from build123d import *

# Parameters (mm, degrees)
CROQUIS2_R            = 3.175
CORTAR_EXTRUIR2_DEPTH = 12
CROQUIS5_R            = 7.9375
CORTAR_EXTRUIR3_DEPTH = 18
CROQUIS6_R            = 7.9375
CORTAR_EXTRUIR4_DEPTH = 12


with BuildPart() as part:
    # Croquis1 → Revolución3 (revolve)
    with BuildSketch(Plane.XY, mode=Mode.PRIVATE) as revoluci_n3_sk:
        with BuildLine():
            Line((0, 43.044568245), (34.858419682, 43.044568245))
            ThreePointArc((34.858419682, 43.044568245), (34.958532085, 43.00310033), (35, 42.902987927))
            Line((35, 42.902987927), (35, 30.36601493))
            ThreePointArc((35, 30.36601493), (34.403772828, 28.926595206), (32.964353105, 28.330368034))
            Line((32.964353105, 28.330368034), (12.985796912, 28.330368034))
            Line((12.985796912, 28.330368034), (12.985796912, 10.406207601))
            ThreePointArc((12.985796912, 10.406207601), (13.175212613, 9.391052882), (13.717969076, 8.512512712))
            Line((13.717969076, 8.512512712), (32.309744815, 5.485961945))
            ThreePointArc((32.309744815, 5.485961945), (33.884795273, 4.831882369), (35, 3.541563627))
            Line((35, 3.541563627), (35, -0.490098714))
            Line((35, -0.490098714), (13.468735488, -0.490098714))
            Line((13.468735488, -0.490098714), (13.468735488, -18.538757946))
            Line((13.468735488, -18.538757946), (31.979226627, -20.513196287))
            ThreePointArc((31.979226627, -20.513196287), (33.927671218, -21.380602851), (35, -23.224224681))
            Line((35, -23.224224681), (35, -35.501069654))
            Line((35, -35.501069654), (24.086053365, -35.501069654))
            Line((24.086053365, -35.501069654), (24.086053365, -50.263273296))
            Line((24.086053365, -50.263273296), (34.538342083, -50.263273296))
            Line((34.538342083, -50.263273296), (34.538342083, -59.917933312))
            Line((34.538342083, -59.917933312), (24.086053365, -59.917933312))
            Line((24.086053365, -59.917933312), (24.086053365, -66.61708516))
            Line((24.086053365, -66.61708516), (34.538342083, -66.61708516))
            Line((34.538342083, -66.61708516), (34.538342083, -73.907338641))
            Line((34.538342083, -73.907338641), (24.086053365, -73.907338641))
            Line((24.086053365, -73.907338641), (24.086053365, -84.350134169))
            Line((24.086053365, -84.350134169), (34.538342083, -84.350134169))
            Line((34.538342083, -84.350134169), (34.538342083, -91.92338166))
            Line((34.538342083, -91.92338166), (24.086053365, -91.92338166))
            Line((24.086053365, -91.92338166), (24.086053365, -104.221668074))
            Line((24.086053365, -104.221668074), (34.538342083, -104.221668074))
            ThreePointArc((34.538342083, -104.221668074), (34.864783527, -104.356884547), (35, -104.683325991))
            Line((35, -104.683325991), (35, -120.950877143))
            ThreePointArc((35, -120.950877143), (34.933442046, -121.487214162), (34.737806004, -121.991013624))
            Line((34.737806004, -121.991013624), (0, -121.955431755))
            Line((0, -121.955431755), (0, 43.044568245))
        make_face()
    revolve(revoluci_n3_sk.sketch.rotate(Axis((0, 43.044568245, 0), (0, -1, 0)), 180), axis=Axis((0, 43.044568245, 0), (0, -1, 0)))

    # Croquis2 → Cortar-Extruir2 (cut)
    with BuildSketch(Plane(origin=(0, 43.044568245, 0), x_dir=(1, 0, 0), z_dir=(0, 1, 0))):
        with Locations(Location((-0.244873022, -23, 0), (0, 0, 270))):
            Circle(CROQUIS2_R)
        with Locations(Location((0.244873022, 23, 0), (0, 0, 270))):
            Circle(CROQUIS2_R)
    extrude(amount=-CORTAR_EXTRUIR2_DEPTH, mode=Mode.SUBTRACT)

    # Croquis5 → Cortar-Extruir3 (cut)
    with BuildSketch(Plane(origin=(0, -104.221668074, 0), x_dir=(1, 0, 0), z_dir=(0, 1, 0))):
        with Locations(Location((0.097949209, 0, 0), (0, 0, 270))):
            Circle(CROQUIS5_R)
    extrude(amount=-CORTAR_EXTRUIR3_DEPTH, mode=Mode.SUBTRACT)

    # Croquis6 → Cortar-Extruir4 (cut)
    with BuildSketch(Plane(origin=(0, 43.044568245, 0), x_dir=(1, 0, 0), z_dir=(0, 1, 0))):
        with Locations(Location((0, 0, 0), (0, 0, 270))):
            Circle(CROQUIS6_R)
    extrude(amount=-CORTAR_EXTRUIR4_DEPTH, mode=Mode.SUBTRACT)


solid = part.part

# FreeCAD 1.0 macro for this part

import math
import FreeCAD as App
import Part
import Sketcher

V = App.Vector
Q = App.Units.Quantity

doc = App.newDocument("Part")
body = doc.addObject("PartDesign::Body", "Body")

# Sketch on XY plane
sketch1 = body.newObject("Sketcher::SketchObject", "Sketch")
sketch1.AttachmentSupport = (doc.getObject("XY_Plane"), [""])
sketch1.MapMode = "FlatFace"
sketch1.addGeometry(Part.LineSegment(V(34.85842, 43.044568, 0), V(0, 43.044568, 0)), False)
sketch1.addGeometry(Part.LineSegment(V(0, 43.044568, 0), V(0, -121.955432, 0)), False)
sketch1.addGeometry(Part.LineSegment(V(0, -121.955432, 0), V(34.737806, -121.991014, 0)), False)
sketch1.addGeometry(Part.ArcOfCircle(Part.Circle(V(32.805767, -120.950877, 0), V(0, 0, 1), 2.194233), math.radians(-28.296333), math.radians(0)), False)
sketch1.addGeometry(Part.LineSegment(V(35, -120.950877, 0), V(35, -104.683326, 0)), False)
sketch1.addGeometry(Part.ArcOfCircle(Part.Circle(V(34.538342, -104.683326, 0), V(0, 0, 1), 0.461658), math.radians(0), math.radians(90)), False)
sketch1.addGeometry(Part.LineSegment(V(34.538342, -104.221668, 0), V(24.086053, -104.221668, 0)), False)
sketch1.addGeometry(Part.LineSegment(V(24.086053, -104.221668, 0), V(24.086053, -91.923382, 0)), False)
sketch1.addGeometry(Part.LineSegment(V(24.086053, -91.923382, 0), V(34.538342, -91.923382, 0)), False)
sketch1.addGeometry(Part.LineSegment(V(34.538342, -91.923382, 0), V(34.538342, -84.350134, 0)), False)
sketch1.addGeometry(Part.LineSegment(V(34.538342, -84.350134, 0), V(24.086053, -84.350134, 0)), False)
sketch1.addGeometry(Part.LineSegment(V(24.086053, -84.350134, 0), V(24.086053, -73.907339, 0)), False)
sketch1.addGeometry(Part.LineSegment(V(24.086053, -73.907339, 0), V(34.538342, -73.907339, 0)), False)
sketch1.addGeometry(Part.LineSegment(V(34.538342, -73.907339, 0), V(34.538342, -66.617085, 0)), False)
sketch1.addGeometry(Part.LineSegment(V(34.538342, -66.617085, 0), V(24.086053, -66.617085, 0)), False)
sketch1.addGeometry(Part.LineSegment(V(24.086053, -66.617085, 0), V(24.086053, -59.917933, 0)), False)
sketch1.addGeometry(Part.LineSegment(V(24.086053, -59.917933, 0), V(34.538342, -59.917933, 0)), False)
sketch1.addGeometry(Part.LineSegment(V(34.538342, -59.917933, 0), V(34.538342, -50.263273, 0)), False)
sketch1.addGeometry(Part.LineSegment(V(34.538342, -50.263273, 0), V(24.086053, -50.263273, 0)), False)
sketch1.addGeometry(Part.LineSegment(V(24.086053, -50.263273, 0), V(24.086053, -35.50107, 0)), False)
sketch1.addGeometry(Part.LineSegment(V(24.086053, -35.50107, 0), V(35, -35.50107, 0)), False)
sketch1.addGeometry(Part.LineSegment(V(35, -35.50107, 0), V(35, -23.224225, 0)), False)
sketch1.addGeometry(Part.ArcOfCircle(Part.Circle(V(31.61141, -23.961506, 0), V(0, 0, 1), 3.467871), math.radians(12.274964), math.radians(83.911515)), False)
sketch1.addGeometry(Part.LineSegment(V(31.979227, -20.513196, 0), V(13.468735, -18.538758, 0)), False)
sketch1.addGeometry(Part.LineSegment(V(13.468735, -18.538758, 0), V(13.468735, -0.490099, 0)), False)
sketch1.addGeometry(Part.LineSegment(V(13.468735, -0.490099, 0), V(35, -0.490099, 0)), False)
sketch1.addGeometry(Part.LineSegment(V(35, -0.490099, 0), V(35, 3.541564, 0)), False)
sketch1.addGeometry(Part.ArcOfCircle(Part.Circle(V(31.714425, 1.828973, 0), V(0, 0, 1), 3.705128), math.radians(27.530559), math.radians(80.753939)), False)
sketch1.addGeometry(Part.LineSegment(V(32.309745, 5.485962, 0), V(13.717969, 8.512513, 0)), False)
sketch1.addGeometry(Part.ArcOfCircle(Part.Circle(V(15.800815, 10.406208, 0), V(0, 0, 1), 2.815019), math.radians(-180), math.radians(-137.723326)), False)
sketch1.addGeometry(Part.LineSegment(V(12.985797, 10.406208, 0), V(12.985797, 28.330368, 0)), False)
sketch1.addGeometry(Part.LineSegment(V(12.985797, 28.330368, 0), V(32.964353, 28.330368, 0)), False)
sketch1.addGeometry(Part.ArcOfCircle(Part.Circle(V(32.964353, 30.366015, 0), V(0, 0, 1), 2.035647), math.radians(-90), math.radians(0)), False)
sketch1.addGeometry(Part.LineSegment(V(35, 30.366015, 0), V(35, 42.902988, 0)), False)
sketch1.addGeometry(Part.ArcOfCircle(Part.Circle(V(34.85842, 42.902988, 0), V(0, 0, 1), 0.14158), math.radians(0), math.radians(90)), False)
sketch1.addConstraint(Sketcher.Constraint("Coincident", 0, 2, 1, 1))
sketch1.addConstraint(Sketcher.Constraint("Coincident", 1, 2, 2, 1))
sketch1.addConstraint(Sketcher.Constraint("Coincident", 2, 2, 3, 1))
sketch1.addConstraint(Sketcher.Constraint("Tangent", 3, 2, 4, 1))
sketch1.addConstraint(Sketcher.Constraint("Tangent", 4, 2, 5, 1))
sketch1.addConstraint(Sketcher.Constraint("Tangent", 5, 2, 6, 1))
sketch1.addConstraint(Sketcher.Constraint("Coincident", 6, 2, 7, 1))
sketch1.addConstraint(Sketcher.Constraint("Coincident", 7, 2, 8, 1))
sketch1.addConstraint(Sketcher.Constraint("Coincident", 8, 2, 9, 1))
sketch1.addConstraint(Sketcher.Constraint("Coincident", 9, 2, 10, 1))
sketch1.addConstraint(Sketcher.Constraint("Coincident", 10, 2, 11, 1))
sketch1.addConstraint(Sketcher.Constraint("Coincident", 11, 2, 12, 1))
sketch1.addConstraint(Sketcher.Constraint("Coincident", 12, 2, 13, 1))
sketch1.addConstraint(Sketcher.Constraint("Coincident", 13, 2, 14, 1))
sketch1.addConstraint(Sketcher.Constraint("Coincident", 14, 2, 15, 1))
sketch1.addConstraint(Sketcher.Constraint("Coincident", 15, 2, 16, 1))
sketch1.addConstraint(Sketcher.Constraint("Coincident", 16, 2, 17, 1))
sketch1.addConstraint(Sketcher.Constraint("Coincident", 17, 2, 18, 1))
sketch1.addConstraint(Sketcher.Constraint("Coincident", 18, 2, 19, 1))
sketch1.addConstraint(Sketcher.Constraint("Coincident", 19, 2, 20, 1))
sketch1.addConstraint(Sketcher.Constraint("Coincident", 20, 2, 21, 1))
sketch1.addConstraint(Sketcher.Constraint("Coincident", 21, 2, 22, 1))
sketch1.addConstraint(Sketcher.Constraint("Tangent", 22, 2, 23, 1))
sketch1.addConstraint(Sketcher.Constraint("Coincident", 23, 2, 24, 1))
sketch1.addConstraint(Sketcher.Constraint("Coincident", 24, 2, 25, 1))
sketch1.addConstraint(Sketcher.Constraint("Coincident", 25, 2, 26, 1))
sketch1.addConstraint(Sketcher.Constraint("Coincident", 26, 2, 27, 1))
sketch1.addConstraint(Sketcher.Constraint("Tangent", 27, 2, 28, 1))
sketch1.addConstraint(Sketcher.Constraint("Coincident", 28, 2, 29, 2))
sketch1.addConstraint(Sketcher.Constraint("Tangent", 29, 1, 30, 1))
sketch1.addConstraint(Sketcher.Constraint("Coincident", 30, 2, 31, 1))
sketch1.addConstraint(Sketcher.Constraint("Tangent", 31, 2, 32, 1))
sketch1.addConstraint(Sketcher.Constraint("Tangent", 32, 2, 33, 1))
sketch1.addConstraint(Sketcher.Constraint("Tangent", 33, 2, 34, 1))
sketch1.addConstraint(Sketcher.Constraint("Tangent", 34, 2, 0, 1))
sketch1.addConstraint(Sketcher.Constraint("Horizontal", 0))
sketch1.addConstraint(Sketcher.Constraint("Vertical", 1))
sketch1.addConstraint(Sketcher.Constraint("Vertical", 4))
sketch1.addConstraint(Sketcher.Constraint("Horizontal", 6))
sketch1.addConstraint(Sketcher.Constraint("Vertical", 7))
sketch1.addConstraint(Sketcher.Constraint("Horizontal", 8))
sketch1.addConstraint(Sketcher.Constraint("Vertical", 9))
sketch1.addConstraint(Sketcher.Constraint("Horizontal", 10))
sketch1.addConstraint(Sketcher.Constraint("Vertical", 11))
sketch1.addConstraint(Sketcher.Constraint("Horizontal", 12))
sketch1.addConstraint(Sketcher.Constraint("Vertical", 13))
sketch1.addConstraint(Sketcher.Constraint("Horizontal", 14))
sketch1.addConstraint(Sketcher.Constraint("Vertical", 15))
sketch1.addConstraint(Sketcher.Constraint("Horizontal", 16))
sketch1.addConstraint(Sketcher.Constraint("Vertical", 17))
sketch1.addConstraint(Sketcher.Constraint("Horizontal", 18))
sketch1.addConstraint(Sketcher.Constraint("Vertical", 19))
sketch1.addConstraint(Sketcher.Constraint("Horizontal", 20))
sketch1.addConstraint(Sketcher.Constraint("Vertical", 21))
sketch1.addConstraint(Sketcher.Constraint("Vertical", 24))
sketch1.addConstraint(Sketcher.Constraint("Horizontal", 25))
sketch1.addConstraint(Sketcher.Constraint("Vertical", 26))
sketch1.addConstraint(Sketcher.Constraint("Vertical", 30))
sketch1.addConstraint(Sketcher.Constraint("Horizontal", 31))
sketch1.addConstraint(Sketcher.Constraint("Vertical", 33))
sketch1.addConstraint(Sketcher.Constraint("PointOnObject", 0, 2, -2))
sketch1.addConstraint(Sketcher.Constraint("Vertical", 5, 2, 8, 2))
sketch1.addConstraint(Sketcher.Constraint("Vertical", 7, 2, 10, 2))
sketch1.addConstraint(Sketcher.Constraint("Vertical", 9, 2, 12, 2))
sketch1.addConstraint(Sketcher.Constraint("Vertical", 11, 2, 14, 2))
sketch1.addConstraint(Sketcher.Constraint("Vertical", 13, 2, 16, 2))
sketch1.addConstraint(Sketcher.Constraint("Vertical", 15, 2, 18, 2))
sketch1.addConstraint(Sketcher.Constraint("Vertical", 4, 2, 20, 2))
sketch1.addConstraint(Sketcher.Constraint("Vertical", 21, 2, 25, 2))
sketch1.addConstraint(Sketcher.Constraint("Vertical", 26, 2, 32, 2))
sketch1.addConstraint(Sketcher.Constraint("DistanceY", 1, 2, 1, 1, Q("165 mm")))
sketch1.addConstraint(Sketcher.Constraint("DistanceX", -1, 1, 3, 2, Q("35 mm")))
sketch1.addConstraint(Sketcher.Constraint("Radius", 22, Q("3.467871 mm")))
sketch1.addConstraint(Sketcher.Constraint("Radius", 29, Q("2.815019 mm")))
sketch1.addConstraint(Sketcher.Constraint("Radius", 34, Q("0.14158 mm")))
sketch1.addConstraint(Sketcher.Constraint("Radius", 3, Q("2.194233 mm")))
sketch1.addConstraint(Sketcher.Constraint("Radius", 5, Q("0.461658 mm")))
sketch1.addConstraint(Sketcher.Constraint("Radius", 27, Q("3.705128 mm")))
sketch1.addConstraint(Sketcher.Constraint("Radius", 32, Q("2.035647 mm")))
sketch1.addConstraint(Sketcher.Constraint("DistanceX", 6, 2, 6, 1, Q("10.452289 mm")))
sketch1.addConstraint(Sketcher.Constraint("DistanceY", 4, 1, 4, 2, Q("16.267551 mm")))
sketch1.addConstraint(Sketcher.Constraint("DistanceY", 15, 1, 15, 2, Q("6.699152 mm")))
sketch1.addConstraint(Sketcher.Constraint("DistanceY", 17, 1, 17, 2, Q("9.65466 mm")))
sketch1.addConstraint(Sketcher.Constraint("DistanceY", 24, 1, 24, 2, Q("18.048659 mm")))
sketch1.addConstraint(Sketcher.Constraint("DistanceY", 30, 1, 30, 2, Q("17.92416 mm")))
sketch1.addConstraint(Sketcher.Constraint("DistanceY", 24, 2, -1, 1, Q("0.490099 mm")))
sketch1.addConstraint(Sketcher.Constraint("DistanceY", 5, 3, 27, 3, Q("106.512299 mm")))
sketch1.addConstraint(Sketcher.Constraint("DistanceY", 10, 2, 15, 2, Q("24.432201 mm")))
sketch1.addConstraint(Sketcher.Constraint("DistanceY", 21, 2, 27, 3, Q("25.053198 mm")))
sketch1.addConstraint(Sketcher.Constraint("DistanceY", 26, 2, 27, 2, Q("1.944398 mm")))
sketch1.addConstraint(Sketcher.Constraint("DistanceY", 30, 2, 0, 2, Q("14.7142 mm")))
sketch1.addConstraint(Sketcher.Constraint("Distance", 28, Q("18.836511 mm")))
sketch1.addConstraint(Sketcher.Constraint("DistanceX", 25, 1, 25, 2, Q("21.531265 mm")))
sketch1.addConstraint(Sketcher.Constraint("DistanceX", 31, 1, 31, 2, Q("19.978556 mm")))
sketch1.addConstraint(Sketcher.Constraint("DistanceY", 7, 1, 7, 2, Q("12.298286 mm")))
sketch1.addConstraint(Sketcher.Constraint("DistanceY", 9, 1, 9, 2, Q("7.573247 mm")))
sketch1.addConstraint(Sketcher.Constraint("DistanceY", 11, 1, 11, 2, Q("10.442796 mm")))
sketch1.addConstraint(Sketcher.Constraint("DistanceY", 19, 1, 19, 2, Q("14.762204 mm")))
sketch1.addConstraint(Sketcher.Constraint("DistanceY", 26, 1, 26, 2, Q("4.031662 mm")))
sketch1.addConstraint(Sketcher.Constraint("DistanceX", -1, 1, 22, 3, Q("31.61141 mm")))
sketch1.addConstraint(Sketcher.Constraint("DistanceY", -1, 1, 0, 2, Q("43.044568 mm")))
sketch1.addConstraint(Sketcher.Constraint("DistanceX", 3, 3, 2, 2, Q("1.932039 mm")))
revolution = body.newObject("PartDesign::Revolution", "Revolution")
revolution.Profile = sketch1
revolution.ReferenceAxis = (sketch1, ["V_Axis"])
revolution.Angle = 360

# Sketch on XZ plane
sketch2 = body.newObject("Sketcher::SketchObject", "Sketch001")
sketch2.AttachmentSupport = (doc.getObject("XZ_Plane"), [""])
sketch2.MapMode = "FlatFace"
sketch2.AttachmentOffset = App.Placement(V(0, 0, -43.044568), App.Rotation())
sketch2.addGeometry(Part.Circle(V(-0.244873, 23, 0), V(0, 0, 1), 3.175), False)
sketch2.addGeometry(Part.Circle(V(0.244873, -23, 0), V(0, 0, 1), 3.175), False)
sketch2.addConstraint(Sketcher.Constraint("Equal", 0, 1))
sketch2.addConstraint(Sketcher.Constraint("Symmetric", 0, 3, 1, 3, -1, 1))
sketch2.addConstraint(Sketcher.Constraint("Diameter", 0, Q("6.35 mm")))
sketch2.addConstraint(Sketcher.Constraint("DistanceY", -1, 1, 0, 3, Q("23 mm")))
sketch2.addConstraint(Sketcher.Constraint("DistanceX", 0, 3, -1, 1, Q("0.244873 mm")))
pocket1 = body.newObject("PartDesign::Pocket", "Pocket")
pocket1.Profile = sketch2
pocket1.Length = 12
pocket1.Reversed = True

# Sketch on XZ plane
sketch3 = body.newObject("Sketcher::SketchObject", "Sketch002")
sketch3.AttachmentSupport = (doc.getObject("XZ_Plane"), [""])
sketch3.MapMode = "FlatFace"
sketch3.AttachmentOffset = App.Placement(V(0, 0, 104.221668), App.Rotation())
sketch3.addGeometry(Part.Circle(V(0.097949, 0, 0), V(0, 0, 1), 7.9375), False)
sketch3.addConstraint(Sketcher.Constraint("PointOnObject", 0, 3, -1))
sketch3.addConstraint(Sketcher.Constraint("Diameter", 0, Q("15.875 mm")))
sketch3.addConstraint(Sketcher.Constraint("DistanceX", -1, 1, 0, 3, Q("0.097949 mm")))
pocket2 = body.newObject("PartDesign::Pocket", "Pocket001")
pocket2.Profile = sketch3
pocket2.Length = 18
pocket2.Reversed = True

# Sketch on XZ plane
sketch4 = body.newObject("Sketcher::SketchObject", "Sketch003")
sketch4.AttachmentSupport = (doc.getObject("XZ_Plane"), [""])
sketch4.MapMode = "FlatFace"
sketch4.AttachmentOffset = App.Placement(V(0, 0, -43.044568), App.Rotation())
sketch4.addGeometry(Part.Circle(V(0, 0, 0), V(0, 0, 1), 7.9375), False)
sketch4.addConstraint(Sketcher.Constraint("Coincident", 0, 3, -1, 1))
sketch4.addConstraint(Sketcher.Constraint("Diameter", 0, Q("15.875 mm")))
pocket3 = body.newObject("PartDesign::Pocket", "Pocket002")
pocket3.Profile = sketch4
pocket3.Length = 12
pocket3.Reversed = True

doc.recompute()
